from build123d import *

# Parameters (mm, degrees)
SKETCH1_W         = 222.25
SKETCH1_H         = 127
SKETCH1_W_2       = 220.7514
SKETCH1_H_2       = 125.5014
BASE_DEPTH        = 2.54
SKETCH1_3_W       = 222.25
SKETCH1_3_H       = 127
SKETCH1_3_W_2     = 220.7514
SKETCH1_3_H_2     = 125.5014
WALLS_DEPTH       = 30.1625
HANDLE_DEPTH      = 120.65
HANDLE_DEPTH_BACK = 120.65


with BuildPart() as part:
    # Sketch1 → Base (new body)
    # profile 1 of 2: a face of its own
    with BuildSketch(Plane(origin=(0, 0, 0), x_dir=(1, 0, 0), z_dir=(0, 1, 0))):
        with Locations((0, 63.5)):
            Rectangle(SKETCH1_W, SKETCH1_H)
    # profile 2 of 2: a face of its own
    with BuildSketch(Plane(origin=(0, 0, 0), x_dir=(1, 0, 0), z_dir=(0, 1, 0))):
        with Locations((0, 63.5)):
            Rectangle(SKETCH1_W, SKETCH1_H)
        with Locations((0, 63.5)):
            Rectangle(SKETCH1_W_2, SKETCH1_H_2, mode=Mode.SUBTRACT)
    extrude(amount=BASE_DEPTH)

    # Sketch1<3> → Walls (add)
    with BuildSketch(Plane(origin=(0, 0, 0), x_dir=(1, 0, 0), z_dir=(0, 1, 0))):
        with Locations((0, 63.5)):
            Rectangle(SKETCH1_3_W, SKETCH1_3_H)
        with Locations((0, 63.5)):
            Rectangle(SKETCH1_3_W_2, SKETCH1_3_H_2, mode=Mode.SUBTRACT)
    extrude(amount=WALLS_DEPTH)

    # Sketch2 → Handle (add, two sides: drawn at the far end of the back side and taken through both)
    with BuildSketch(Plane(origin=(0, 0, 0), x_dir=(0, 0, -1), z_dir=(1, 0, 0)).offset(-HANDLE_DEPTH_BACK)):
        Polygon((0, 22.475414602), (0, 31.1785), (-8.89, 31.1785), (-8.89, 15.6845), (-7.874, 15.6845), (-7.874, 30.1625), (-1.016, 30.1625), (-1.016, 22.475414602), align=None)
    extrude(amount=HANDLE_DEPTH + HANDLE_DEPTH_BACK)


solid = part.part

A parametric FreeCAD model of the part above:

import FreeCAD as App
import Part
import Sketcher
Q = App.Units.Quantity


def add_polygon(sketch, points):
    """Adds a closed chain of lines whose ends are joined by coincident constraints."""
    first, n = sketch.GeometryCount, len(points)
    for a, b in zip(points, points[1:] + points[:1]):
        sketch.addGeometry(Part.LineSegment(App.Vector(*a, 0), App.Vector(*b, 0)), False)
    for i in range(n):
        sketch.addConstraint(Sketcher.Constraint("Coincident", first + i, 2, first + (i + 1) % n, 1))

doc = App.newDocument("Part")
body = doc.addObject("PartDesign::Body", "Body")

# Sketch on XZ plane
sketch1 = body.newObject("Sketcher::SketchObject", "Sketch")
sketch1.AttachmentSupport = (doc.getObject("XZ_Plane"), [""])
sketch1.MapMode = "FlatFace"
add_polygon(sketch1, [(-111.125, -127), (-111.125, 0), (111.125, 0), (111.125, -127)])  # lines 0-3
sketch1.addConstraint(Sketcher.Constraint("Vertical", 0))
sketch1.addConstraint(Sketcher.Constraint("Horizontal", 1))
sketch1.addConstraint(Sketcher.Constraint("Vertical", 2))
sketch1.addConstraint(Sketcher.Constraint("Horizontal", 3))
sketch1.addConstraint(Sketcher.Constraint("Symmetric", 0, 2, 1, 2, -1, 1))
sketch1.addConstraint(Sketcher.Constraint("DistanceY", 0, 1, 0, 2, Q("5 in")))
sketch1.addConstraint(Sketcher.Constraint("DistanceX", 1, 1, 1, 2, Q("8.75 in")))
pad1 = body.newObject("PartDesign::Pad", "Pad")
pad1.Profile = sketch1
pad1.Length = Q("0.1 in")
pad1.Reversed = True

# Sketch on XZ plane
sketch2 = body.newObject("Sketcher::SketchObject", "Sketch001")
sketch2.AttachmentSupport = (doc.getObject("XZ_Plane"), [""])
sketch2.MapMode = "FlatFace"
add_polygon(sketch2, [(-111.125, -127), (-111.125, 0), (111.125, 0), (111.125, -127)])  # lines 0-3
add_polygon(sketch2, [(110.3757, -0.7493), (-110.3757, -0.7493), (-110.3757, -126.2507), (110.3757, -126.2507)])  # lines 4-7
sketch2.addConstraint(Sketcher.Constraint("Vertical", 0))
sketch2.addConstraint(Sketcher.Constraint("Horizontal", 1))
sketch2.addConstraint(Sketcher.Constraint("Vertical", 2))
sketch2.addConstraint(Sketcher.Constraint("Horizontal", 3))
sketch2.addConstraint(Sketcher.Constraint("Horizontal", 4))
sketch2.addConstraint(Sketcher.Constraint("Vertical", 5))
sketch2.addConstraint(Sketcher.Constraint("Horizontal", 6))
sketch2.addConstraint(Sketcher.Constraint("Vertical", 7))
sketch2.addConstraint(Sketcher.Constraint("Symmetric", 0, 2, 1, 2, -1, 1))
sketch2.addConstraint(Sketcher.Constraint("DistanceY", 0, 1, 0, 2, Q("5 in")))
sketch2.addConstraint(Sketcher.Constraint("DistanceX", 1, 1, 1, 2, Q("8.75 in")))
sketch2.addConstraint(Sketcher.Constraint("DistanceX", 4, 2, 4, 1, Q("8.691 in")))
sketch2.addConstraint(Sketcher.Constraint("DistanceY", 5, 2, 5, 1, Q("4.941 in")))
sketch2.addConstraint(Sketcher.Constraint("DistanceX", 4, 2, -1, 1, Q("4.3455 in")))
sketch2.addConstraint(Sketcher.Constraint("DistanceY", 4, 2, -1, 1, Q("0.0295 in")))
pad2 = body.newObject("PartDesign::Pad", "Pad001")
pad2.Profile = sketch2
pad2.Length = Q("1.1875 in")
pad2.Reversed = True

# Sketch on YZ plane
sketch3 = body.newObject("Sketcher::SketchObject", "Sketch002")
sketch3.AttachmentSupport = (doc.getObject("YZ_Plane"), [""])
sketch3.MapMode = "FlatFace"
add_polygon(sketch3, [(22.475415, 0), (31.1785, 0), (31.1785, 8.89), (15.6845, 8.89), (15.6845, 7.874), (30.1625, 7.874), (30.1625, 1.016), (22.475415, 1.016)])  # lines 0-7
sketch3.addConstraint(Sketcher.Constraint("Horizontal", 0))
sketch3.addConstraint(Sketcher.Constraint("Vertical", 1))
sketch3.addConstraint(Sketcher.Constraint("Horizontal", 2))
sketch3.addConstraint(Sketcher.Constraint("Vertical", 3))
sketch3.addConstraint(Sketcher.Constraint("Horizontal", 4))
sketch3.addConstraint(Sketcher.Constraint("Vertical", 5))
sketch3.addConstraint(Sketcher.Constraint("Horizontal", 6))
sketch3.addConstraint(Sketcher.Constraint("Vertical", 7))
sketch3.addConstraint(Sketcher.Constraint("PointOnObject", 0, 2, -1))
sketch3.addConstraint(Sketcher.Constraint("Equal", 3, 7))
sketch3.addConstraint(Sketcher.Constraint("DistanceX", 2, 2, 2, 1, Q("0.61 in")))
sketch3.addConstraint(Sketcher.Constraint("DistanceX", 4, 1, 4, 2, Q("0.57 in")))
sketch3.addConstraint(Sketcher.Constraint("DistanceY", 1, 1, 1, 2, Q("0.35 in")))
sketch3.addConstraint(Sketcher.Constraint("DistanceY", 3, 2, 3, 1, Q("0.04 in")))
sketch3.addConstraint(Sketcher.Constraint("DistanceX", -1, 1, 4, 2, Q("1.1875 in")))
sketch3.addConstraint(Sketcher.Constraint("DistanceX", 0, 1, 0, 2, Q("8.703085 mm")))
pad3 = body.newObject("PartDesign::Pad", "Pad002")
pad3.Profile = sketch3
pad3.Type = "TwoLengths"
pad3.Length = Q("4.75 in")
pad3.Length2 = Q("4.75 in")

doc.recompute()
